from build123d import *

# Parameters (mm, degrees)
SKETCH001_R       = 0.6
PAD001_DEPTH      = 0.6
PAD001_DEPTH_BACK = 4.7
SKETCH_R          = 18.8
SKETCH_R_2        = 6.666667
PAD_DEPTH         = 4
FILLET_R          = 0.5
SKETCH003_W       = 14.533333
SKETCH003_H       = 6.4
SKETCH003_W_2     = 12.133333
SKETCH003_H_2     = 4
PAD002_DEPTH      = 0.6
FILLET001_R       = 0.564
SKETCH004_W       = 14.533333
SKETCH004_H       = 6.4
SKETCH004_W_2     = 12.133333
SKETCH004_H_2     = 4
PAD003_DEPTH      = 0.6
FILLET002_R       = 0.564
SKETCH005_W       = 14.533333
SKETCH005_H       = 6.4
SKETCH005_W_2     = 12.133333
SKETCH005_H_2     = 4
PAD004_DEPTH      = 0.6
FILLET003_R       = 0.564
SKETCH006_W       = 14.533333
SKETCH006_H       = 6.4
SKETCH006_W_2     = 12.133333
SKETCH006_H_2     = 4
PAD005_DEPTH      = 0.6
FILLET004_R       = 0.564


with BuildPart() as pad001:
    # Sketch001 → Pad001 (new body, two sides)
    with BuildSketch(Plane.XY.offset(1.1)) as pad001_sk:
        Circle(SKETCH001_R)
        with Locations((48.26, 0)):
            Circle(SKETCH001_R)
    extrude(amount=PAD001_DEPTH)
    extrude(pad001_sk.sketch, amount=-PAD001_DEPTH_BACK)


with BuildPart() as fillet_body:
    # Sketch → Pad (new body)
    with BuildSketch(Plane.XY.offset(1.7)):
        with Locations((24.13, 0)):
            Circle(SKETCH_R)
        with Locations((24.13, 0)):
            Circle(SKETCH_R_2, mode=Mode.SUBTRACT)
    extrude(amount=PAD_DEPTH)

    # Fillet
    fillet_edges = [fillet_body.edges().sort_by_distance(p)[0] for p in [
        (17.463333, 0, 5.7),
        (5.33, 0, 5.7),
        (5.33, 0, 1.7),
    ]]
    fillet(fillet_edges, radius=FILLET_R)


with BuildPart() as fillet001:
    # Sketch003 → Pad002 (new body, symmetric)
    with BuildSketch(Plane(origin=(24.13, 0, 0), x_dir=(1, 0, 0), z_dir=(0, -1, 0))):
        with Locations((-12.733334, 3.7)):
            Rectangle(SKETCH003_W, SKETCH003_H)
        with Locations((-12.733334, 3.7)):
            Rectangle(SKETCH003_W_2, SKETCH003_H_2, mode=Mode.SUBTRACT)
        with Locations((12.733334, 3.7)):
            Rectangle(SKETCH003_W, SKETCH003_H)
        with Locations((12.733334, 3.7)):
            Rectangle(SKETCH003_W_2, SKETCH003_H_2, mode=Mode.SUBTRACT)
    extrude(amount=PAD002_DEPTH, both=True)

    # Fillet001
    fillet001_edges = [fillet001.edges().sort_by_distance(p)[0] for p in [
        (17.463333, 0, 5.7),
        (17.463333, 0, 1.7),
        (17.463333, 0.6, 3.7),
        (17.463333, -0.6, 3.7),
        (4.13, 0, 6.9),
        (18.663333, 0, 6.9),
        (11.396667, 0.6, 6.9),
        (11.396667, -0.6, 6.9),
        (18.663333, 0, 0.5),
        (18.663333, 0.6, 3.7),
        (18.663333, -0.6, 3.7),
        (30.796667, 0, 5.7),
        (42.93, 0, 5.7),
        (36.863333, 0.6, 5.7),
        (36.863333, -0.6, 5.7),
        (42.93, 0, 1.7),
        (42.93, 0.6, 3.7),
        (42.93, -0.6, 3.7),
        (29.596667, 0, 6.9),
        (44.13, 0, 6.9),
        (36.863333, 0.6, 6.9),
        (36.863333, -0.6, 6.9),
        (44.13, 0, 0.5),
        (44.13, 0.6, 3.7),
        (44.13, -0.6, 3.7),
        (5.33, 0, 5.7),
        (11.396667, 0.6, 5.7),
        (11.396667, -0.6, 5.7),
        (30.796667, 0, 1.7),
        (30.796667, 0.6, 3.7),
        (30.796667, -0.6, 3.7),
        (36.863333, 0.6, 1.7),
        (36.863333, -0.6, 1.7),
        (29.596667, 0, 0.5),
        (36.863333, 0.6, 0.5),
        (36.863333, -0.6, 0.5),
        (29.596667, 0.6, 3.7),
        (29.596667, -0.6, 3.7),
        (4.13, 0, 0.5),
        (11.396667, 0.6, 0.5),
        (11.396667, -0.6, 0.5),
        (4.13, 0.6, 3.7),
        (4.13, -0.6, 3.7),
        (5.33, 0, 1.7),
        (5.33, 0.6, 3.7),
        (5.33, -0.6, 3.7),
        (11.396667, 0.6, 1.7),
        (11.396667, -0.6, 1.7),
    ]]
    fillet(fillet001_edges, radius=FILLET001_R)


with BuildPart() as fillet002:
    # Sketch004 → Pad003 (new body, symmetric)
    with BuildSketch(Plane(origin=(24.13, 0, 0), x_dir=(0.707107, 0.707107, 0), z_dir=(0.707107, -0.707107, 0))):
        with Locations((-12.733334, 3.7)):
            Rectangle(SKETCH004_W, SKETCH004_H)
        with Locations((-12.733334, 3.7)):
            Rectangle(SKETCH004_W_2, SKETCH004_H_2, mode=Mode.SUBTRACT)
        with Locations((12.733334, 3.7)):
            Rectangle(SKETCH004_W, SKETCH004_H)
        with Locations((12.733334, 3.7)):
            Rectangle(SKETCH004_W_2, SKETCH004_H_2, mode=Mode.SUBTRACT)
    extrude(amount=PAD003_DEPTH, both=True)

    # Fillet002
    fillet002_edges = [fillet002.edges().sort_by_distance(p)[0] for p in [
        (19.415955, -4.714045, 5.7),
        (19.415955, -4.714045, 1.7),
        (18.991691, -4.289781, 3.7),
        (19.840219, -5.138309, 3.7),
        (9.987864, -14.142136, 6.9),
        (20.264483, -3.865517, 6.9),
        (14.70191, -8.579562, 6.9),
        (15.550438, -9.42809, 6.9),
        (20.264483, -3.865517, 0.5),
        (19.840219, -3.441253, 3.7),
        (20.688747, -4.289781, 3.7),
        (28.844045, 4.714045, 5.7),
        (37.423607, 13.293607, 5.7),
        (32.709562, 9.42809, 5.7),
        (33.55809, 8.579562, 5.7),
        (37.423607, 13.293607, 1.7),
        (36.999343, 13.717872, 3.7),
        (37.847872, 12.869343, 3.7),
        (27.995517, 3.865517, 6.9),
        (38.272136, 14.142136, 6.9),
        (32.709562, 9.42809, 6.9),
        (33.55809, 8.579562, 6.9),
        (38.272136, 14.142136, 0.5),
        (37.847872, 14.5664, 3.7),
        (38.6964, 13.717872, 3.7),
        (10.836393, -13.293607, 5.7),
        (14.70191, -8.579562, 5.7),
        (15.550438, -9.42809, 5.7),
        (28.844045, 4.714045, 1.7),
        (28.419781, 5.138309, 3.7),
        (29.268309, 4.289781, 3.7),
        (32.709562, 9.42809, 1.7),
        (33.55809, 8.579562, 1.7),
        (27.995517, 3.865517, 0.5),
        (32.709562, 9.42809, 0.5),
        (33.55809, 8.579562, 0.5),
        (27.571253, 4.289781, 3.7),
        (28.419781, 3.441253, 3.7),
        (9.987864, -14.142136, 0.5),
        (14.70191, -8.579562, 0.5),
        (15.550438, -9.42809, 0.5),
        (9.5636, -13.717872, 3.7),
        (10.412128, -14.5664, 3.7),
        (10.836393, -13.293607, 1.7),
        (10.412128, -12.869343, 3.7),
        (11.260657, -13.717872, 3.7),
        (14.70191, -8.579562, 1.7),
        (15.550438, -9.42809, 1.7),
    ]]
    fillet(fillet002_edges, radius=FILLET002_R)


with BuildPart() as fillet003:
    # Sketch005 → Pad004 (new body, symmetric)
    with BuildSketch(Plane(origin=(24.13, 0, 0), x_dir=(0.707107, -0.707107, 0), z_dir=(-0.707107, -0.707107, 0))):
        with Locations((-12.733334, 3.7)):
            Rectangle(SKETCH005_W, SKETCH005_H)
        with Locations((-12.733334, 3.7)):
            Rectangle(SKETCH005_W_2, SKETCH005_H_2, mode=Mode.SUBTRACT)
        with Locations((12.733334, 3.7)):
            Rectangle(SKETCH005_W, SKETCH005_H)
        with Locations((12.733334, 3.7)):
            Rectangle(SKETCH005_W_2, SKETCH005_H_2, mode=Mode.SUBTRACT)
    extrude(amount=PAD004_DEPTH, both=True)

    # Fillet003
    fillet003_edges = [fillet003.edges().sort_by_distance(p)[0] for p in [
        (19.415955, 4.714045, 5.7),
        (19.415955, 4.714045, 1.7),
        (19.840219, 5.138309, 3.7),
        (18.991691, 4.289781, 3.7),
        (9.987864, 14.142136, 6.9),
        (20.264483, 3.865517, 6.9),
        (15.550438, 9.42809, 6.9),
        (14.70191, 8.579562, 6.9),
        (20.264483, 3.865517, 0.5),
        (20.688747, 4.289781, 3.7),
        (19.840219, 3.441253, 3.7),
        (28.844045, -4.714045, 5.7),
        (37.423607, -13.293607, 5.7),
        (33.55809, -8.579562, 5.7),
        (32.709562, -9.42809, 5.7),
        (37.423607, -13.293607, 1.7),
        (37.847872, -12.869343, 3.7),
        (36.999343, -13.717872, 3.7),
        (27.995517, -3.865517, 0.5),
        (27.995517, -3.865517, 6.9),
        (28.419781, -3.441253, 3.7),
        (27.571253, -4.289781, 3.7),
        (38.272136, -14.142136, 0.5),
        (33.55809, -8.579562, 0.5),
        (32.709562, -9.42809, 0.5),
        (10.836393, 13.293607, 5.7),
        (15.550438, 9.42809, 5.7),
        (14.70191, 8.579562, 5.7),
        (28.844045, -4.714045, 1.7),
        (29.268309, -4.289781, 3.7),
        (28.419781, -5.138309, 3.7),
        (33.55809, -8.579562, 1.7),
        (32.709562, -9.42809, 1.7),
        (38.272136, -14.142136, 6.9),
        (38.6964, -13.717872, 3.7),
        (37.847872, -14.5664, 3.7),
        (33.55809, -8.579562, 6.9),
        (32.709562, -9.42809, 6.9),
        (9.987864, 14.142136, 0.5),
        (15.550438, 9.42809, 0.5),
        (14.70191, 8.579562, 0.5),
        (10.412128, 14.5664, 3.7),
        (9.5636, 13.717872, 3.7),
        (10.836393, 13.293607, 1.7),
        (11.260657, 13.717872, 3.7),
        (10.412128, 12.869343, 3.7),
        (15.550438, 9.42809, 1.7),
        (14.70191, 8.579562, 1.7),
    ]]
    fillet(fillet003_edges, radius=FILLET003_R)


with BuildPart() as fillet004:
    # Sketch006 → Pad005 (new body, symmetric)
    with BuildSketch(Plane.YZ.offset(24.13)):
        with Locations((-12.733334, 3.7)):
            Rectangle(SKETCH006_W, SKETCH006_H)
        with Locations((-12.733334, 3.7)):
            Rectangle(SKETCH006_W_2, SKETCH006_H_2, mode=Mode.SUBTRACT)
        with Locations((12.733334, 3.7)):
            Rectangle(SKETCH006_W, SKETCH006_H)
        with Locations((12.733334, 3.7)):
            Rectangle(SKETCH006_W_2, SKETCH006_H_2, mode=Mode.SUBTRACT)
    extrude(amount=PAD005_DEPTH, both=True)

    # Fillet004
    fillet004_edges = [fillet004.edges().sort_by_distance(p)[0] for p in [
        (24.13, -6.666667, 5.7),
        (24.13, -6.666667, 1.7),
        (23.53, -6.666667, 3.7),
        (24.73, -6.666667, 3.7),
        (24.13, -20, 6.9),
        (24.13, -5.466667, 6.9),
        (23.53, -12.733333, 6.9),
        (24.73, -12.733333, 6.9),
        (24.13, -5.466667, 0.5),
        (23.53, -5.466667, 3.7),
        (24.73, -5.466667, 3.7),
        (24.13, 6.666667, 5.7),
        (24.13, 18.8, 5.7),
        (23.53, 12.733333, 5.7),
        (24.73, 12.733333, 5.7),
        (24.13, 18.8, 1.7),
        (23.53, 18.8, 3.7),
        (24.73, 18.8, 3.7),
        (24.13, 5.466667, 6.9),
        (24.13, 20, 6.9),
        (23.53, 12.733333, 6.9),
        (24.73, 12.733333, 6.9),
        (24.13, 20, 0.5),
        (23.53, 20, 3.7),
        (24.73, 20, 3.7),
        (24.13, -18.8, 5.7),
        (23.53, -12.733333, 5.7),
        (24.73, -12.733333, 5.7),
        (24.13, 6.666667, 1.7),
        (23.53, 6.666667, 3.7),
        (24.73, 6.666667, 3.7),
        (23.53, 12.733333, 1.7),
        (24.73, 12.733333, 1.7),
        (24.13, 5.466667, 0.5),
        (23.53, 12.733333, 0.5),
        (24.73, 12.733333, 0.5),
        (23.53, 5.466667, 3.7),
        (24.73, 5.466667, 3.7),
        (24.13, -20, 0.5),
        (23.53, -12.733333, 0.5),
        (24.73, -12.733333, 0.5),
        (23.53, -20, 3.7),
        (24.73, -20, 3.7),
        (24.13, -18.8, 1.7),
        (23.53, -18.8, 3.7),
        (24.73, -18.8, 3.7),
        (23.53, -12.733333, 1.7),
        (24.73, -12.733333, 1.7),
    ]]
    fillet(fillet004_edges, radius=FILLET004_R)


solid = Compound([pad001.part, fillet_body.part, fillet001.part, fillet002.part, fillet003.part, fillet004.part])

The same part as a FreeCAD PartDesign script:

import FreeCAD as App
import Part
import Sketcher

V = App.Vector


def edges_at(feature, points):
    """Names of the edges that pass closest to the given points."""
    edges = feature.Shape.Edges
    near = lambda p: min(range(len(edges)), key=lambda i: edges[i].distToShape(Part.Vertex(*p))[0])
    return sorted({f"Edge{near(p) + 1}" for p in points})

doc = App.newDocument("Part")
body = doc.addObject("PartDesign::Body", "Body")
body.AllowCompound = True

# Sketch on XY plane
sketch1 = body.newObject("Sketcher::SketchObject", "Sketch")
sketch1.AttachmentSupport = (doc.getObject("XY_Plane"), [""])
sketch1.MapMode = "FlatFace"
sketch1.AttachmentOffset = App.Placement(V(0, 0, 1.1), App.Rotation())
sketch1.addGeometry([
    Part.Circle(V(0, 0, 0), V(0, 0, 1), 0.6),
    Part.Circle(V(48.26, 0, 0), V(0, 0, 1), 0.6),
], False)
sketch1.addConstraint([
    Sketcher.Constraint("Coincident", 0, 3, -1, 1),
    Sketcher.Constraint("Equal", 0, 1),
    Sketcher.Constraint("PointOnObject", 1, 3, -1),
    Sketcher.Constraint("Diameter", 0, 1.2),
    Sketcher.Constraint("DistanceX", -1, 1, 1, 3, 48.26),
])
pad1 = body.newObject("PartDesign::Pad", "Pad")
pad1.Profile = sketch1
pad1.Type = "TwoLengths"
pad1.Length = 0.6
pad1.Length2 = 4.7
body2 = doc.addObject("PartDesign::Body", "Body001")

# Sketch on XY plane
sketch2 = body2.newObject("Sketcher::SketchObject", "Sketch001")
sketch2.AttachmentSupport = (doc.getObject("XY_Plane001"), [""])
sketch2.MapMode = "FlatFace"
sketch2.AttachmentOffset = App.Placement(V(0, 0, 1.7), App.Rotation())
sketch2.addGeometry([
    Part.Circle(V(24.13, 0, 0), V(0, 0, 1), 18.8),
    Part.Circle(V(24.13, 0, 0), V(0, 0, 1), 6.666667),
], False)
sketch2.addConstraint([
    Sketcher.Constraint("Coincident", 1, 3, 0, 3),
    Sketcher.Constraint("PointOnObject", 0, 3, -1),
    Sketcher.Constraint("Diameter", 0, 37.6),
    Sketcher.Constraint("DistanceX", -1, 1, 0, 3, 24.13),
    Sketcher.Constraint("Diameter", 1, 13.333334),
])
pad2 = body2.newObject("PartDesign::Pad", "Pad001")
pad2.Profile = sketch2
pad2.Length = 4
doc.recompute()

fillet = body2.newObject("PartDesign::Fillet", "Fillet")
fillet.Base = (pad2, edges_at(pad2, [(17.463, 0, 5.7), (5.33, 0, 5.7), (5.33, 0, 1.7)]))
fillet.Radius = 0.5
body3 = doc.addObject("PartDesign::Body", "Body002")
body3.AllowCompound = True

# Sketch on XZ plane
sketch3 = body3.newObject("Sketcher::SketchObject", "Sketch002")
sketch3.AttachmentSupport = (doc.getObject("XZ_Plane002"), [""])
sketch3.MapMode = "FlatFace"
sketch3.addGeometry([
    Part.LineSegment(V(4.13, 6.9, 0), V(4.13, 0.5, 0)),  # 0
    Part.LineSegment(V(4.13, 0.5, 0), V(18.663332, 0.5, 0)),  # 1
    Part.LineSegment(V(18.663332, 0.5, 0), V(18.663332, 6.9, 0)),  # 2
    Part.LineSegment(V(18.663332, 6.9, 0), V(4.13, 6.9, 0)),  # 3
    Part.LineSegment(V(17.463332, 1.7, 0), V(5.329999, 1.7, 0)),  # 4
    Part.LineSegment(V(5.329999, 1.7, 0), V(5.329999, 5.7, 0)),  # 5
    Part.LineSegment(V(5.329999, 5.7, 0), V(17.463332, 5.7, 0)),  # 6
    Part.LineSegment(V(17.463332, 5.7, 0), V(17.463332, 1.7, 0)),  # 7
    Part.LineSegment(V(29.596667, 6.9, 0), V(29.596667, 0.5, 0)),  # 8
    Part.LineSegment(V(29.596667, 0.5, 0), V(44.130001, 0.5, 0)),  # 9
    Part.LineSegment(V(44.130001, 0.5, 0), V(44.130001, 6.9, 0)),  # 10
    Part.LineSegment(V(44.130001, 6.9, 0), V(29.596667, 6.9, 0)),  # 11
    Part.LineSegment(V(42.93, 1.7, 0), V(30.796668, 1.7, 0)),  # 12
    Part.LineSegment(V(30.796668, 1.7, 0), V(30.796668, 5.7, 0)),  # 13
    Part.LineSegment(V(30.796668, 5.7, 0), V(42.93, 5.7, 0)),  # 14
    Part.LineSegment(V(42.93, 5.7, 0), V(42.93, 1.7, 0)),  # 15
], False)
sketch3.addConstraint([
    Sketcher.Constraint("Coincident", 0, 2, 1, 1),
    Sketcher.Constraint("Coincident", 1, 2, 2, 1),
    Sketcher.Constraint("Coincident", 2, 2, 3, 1),
    Sketcher.Constraint("Coincident", 3, 2, 0, 1),
    Sketcher.Constraint("Coincident", 4, 2, 5, 1),
    Sketcher.Constraint("Coincident", 5, 2, 6, 1),
    Sketcher.Constraint("Coincident", 6, 2, 7, 1),
    Sketcher.Constraint("Coincident", 7, 2, 4, 1),
    Sketcher.Constraint("Coincident", 8, 2, 9, 1),
    Sketcher.Constraint("Coincident", 9, 2, 10, 1),
    Sketcher.Constraint("Coincident", 10, 2, 11, 1),
    Sketcher.Constraint("Coincident", 11, 2, 8, 1),
    Sketcher.Constraint("Coincident", 12, 2, 13, 1),
    Sketcher.Constraint("Coincident", 13, 2, 14, 1),
    Sketcher.Constraint("Coincident", 14, 2, 15, 1),
    Sketcher.Constraint("Coincident", 15, 2, 12, 1),
    Sketcher.Constraint("Vertical", 0),
    Sketcher.Constraint("Horizontal", 1),
    Sketcher.Constraint("Vertical", 2),
    Sketcher.Constraint("Horizontal", 3),
    Sketcher.Constraint("Horizontal", 4),
    Sketcher.Constraint("Vertical", 5),
    Sketcher.Constraint("Horizontal", 6),
    Sketcher.Constraint("Vertical", 7),
    Sketcher.Constraint("Vertical", 8),
    Sketcher.Constraint("Horizontal", 9),
    Sketcher.Constraint("Vertical", 10),
    Sketcher.Constraint("Horizontal", 11),
    Sketcher.Constraint("Horizontal", 12),
    Sketcher.Constraint("Vertical", 13),
    Sketcher.Constraint("Horizontal", 14),
    Sketcher.Constraint("Vertical", 15),
    Sketcher.Constraint("Horizontal", 1, 2, 8, 2),
    Sketcher.Constraint("Horizontal", 3, 2, 10, 2),
    Sketcher.Constraint("Horizontal", 7, 2, 12, 2),
    Sketcher.Constraint("Horizontal", 6, 2, 13, 2),
    Sketcher.Constraint("Equal", 3, 9),
    Sketcher.Constraint("Equal", 6, 12),
    Sketcher.Constraint("DistanceY", 5, 1, 5, 2, 4.0),
    Sketcher.Constraint("DistanceY", 0, 2, 0, 1, 6.4),
    Sketcher.Constraint("DistanceY", -1, 1, 0, 2, 0.5),
    Sketcher.Constraint("DistanceY", -1, 1, 4, 2, 1.7),
    Sketcher.Constraint("DistanceX", 0, 2, 4, 2, 1.2),
    Sketcher.Constraint("DistanceX", 6, 2, 2, 2, 1.2),
    Sketcher.Constraint("DistanceX", 8, 2, 12, 2, 1.2),
    Sketcher.Constraint("DistanceX", -1, 1, 0, 2, 4.13),
    Sketcher.Constraint("DistanceX", -1, 1, 9, 2, 44.130001),
    Sketcher.Constraint("DistanceX", 1, 1, 1, 2, 14.533333),
])
pad3 = body3.newObject("PartDesign::Pad", "Pad002")
pad3.Profile = sketch3
pad3.Length = 1.2
pad3.Midplane = True
doc.recompute()

fillet2 = body3.newObject("PartDesign::Fillet", "Fillet001")
fillet2.Base = (pad3, ["Edge1"])
fillet2.UseAllEdges = True
fillet2.Radius = 0.564
body4 = doc.addObject("PartDesign::Body", "Body003")
body4.AllowCompound = True

# Sketch on an angled plane
sketch4 = body4.newObject("Sketcher::SketchObject", "Sketch003")
sketch4.Placement = App.Placement(V(24.13, 0, 0), App.Rotation(V(0.707106781, 0.707106781, 0), V(0, 0, 0.999999999), V(0.707106781, -0.707106781, 0), "ZXY"))
sketch4.addGeometry([
    Part.LineSegment(V(-20, 6.9, 0), V(-20, 0.5, 0)),  # 0
    Part.LineSegment(V(-20, 0.5, 0), V(-5.466667, 0.5, 0)),  # 1
    Part.LineSegment(V(-5.466667, 0.5, 0), V(-5.466667, 6.9, 0)),  # 2
    Part.LineSegment(V(-5.466667, 6.9, 0), V(-20, 6.9, 0)),  # 3
    Part.LineSegment(V(-6.666667, 1.7, 0), V(-18.8, 1.7, 0)),  # 4
    Part.LineSegment(V(-18.8, 1.7, 0), V(-18.8, 5.7, 0)),  # 5
    Part.LineSegment(V(-18.8, 5.7, 0), V(-6.666667, 5.7, 0)),  # 6
    Part.LineSegment(V(-6.666667, 5.7, 0), V(-6.666667, 1.7, 0)),  # 7
    Part.LineSegment(V(5.466667, 6.9, 0), V(5.466667, 0.5, 0)),  # 8
    Part.LineSegment(V(5.466667, 0.5, 0), V(20, 0.5, 0)),  # 9
    Part.LineSegment(V(20, 0.5, 0), V(20, 6.9, 0)),  # 10
    Part.LineSegment(V(20, 6.9, 0), V(5.466667, 6.9, 0)),  # 11
    Part.LineSegment(V(18.8, 1.7, 0), V(6.666667, 1.7, 0)),  # 12
    Part.LineSegment(V(6.666667, 1.7, 0), V(6.666667, 5.7, 0)),  # 13
    Part.LineSegment(V(6.666667, 5.7, 0), V(18.8, 5.7, 0)),  # 14
    Part.LineSegment(V(18.8, 5.7, 0), V(18.8, 1.7, 0)),  # 15
], False)
sketch4.addConstraint([
    Sketcher.Constraint("Coincident", 0, 2, 1, 1),
    Sketcher.Constraint("Coincident", 1, 2, 2, 1),
    Sketcher.Constraint("Coincident", 2, 2, 3, 1),
    Sketcher.Constraint("Coincident", 3, 2, 0, 1),
    Sketcher.Constraint("Coincident", 4, 2, 5, 1),
    Sketcher.Constraint("Coincident", 5, 2, 6, 1),
    Sketcher.Constraint("Coincident", 6, 2, 7, 1),
    Sketcher.Constraint("Coincident", 7, 2, 4, 1),
    Sketcher.Constraint("Coincident", 8, 2, 9, 1),
    Sketcher.Constraint("Coincident", 9, 2, 10, 1),
    Sketcher.Constraint("Coincident", 10, 2, 11, 1),
    Sketcher.Constraint("Coincident", 11, 2, 8, 1),
    Sketcher.Constraint("Coincident", 12, 2, 13, 1),
    Sketcher.Constraint("Coincident", 13, 2, 14, 1),
    Sketcher.Constraint("Coincident", 14, 2, 15, 1),
    Sketcher.Constraint("Coincident", 15, 2, 12, 1),
    Sketcher.Constraint("Vertical", 0),
    Sketcher.Constraint("Horizontal", 1),
    Sketcher.Constraint("Vertical", 2),
    Sketcher.Constraint("Horizontal", 3),
    Sketcher.Constraint("Horizontal", 4),
    Sketcher.Constraint("Vertical", 5),
    Sketcher.Constraint("Horizontal", 6),
    Sketcher.Constraint("Vertical", 7),
    Sketcher.Constraint("Vertical", 8),
    Sketcher.Constraint("Horizontal", 9),
    Sketcher.Constraint("Vertical", 10),
    Sketcher.Constraint("Horizontal", 11),
    Sketcher.Constraint("Horizontal", 12),
    Sketcher.Constraint("Vertical", 13),
    Sketcher.Constraint("Horizontal", 14),
    Sketcher.Constraint("Vertical", 15),
    Sketcher.Constraint("Symmetric", 1, 2, 8, 2, -2),
    Sketcher.Constraint("Symmetric", 3, 2, 10, 2, -2),
    Sketcher.Constraint("Symmetric", 7, 2, 12, 2, -2),
    Sketcher.Constraint("Symmetric", 5, 2, 14, 2, -2),
    Sketcher.Constraint("DistanceY", 5, 1, 5, 2, 4.0),
    Sketcher.Constraint("DistanceY", 0, 2, 0, 1, 6.4),
    Sketcher.Constraint("DistanceX", 0, 2, -1, 1, 20.0),
    Sketcher.Constraint("DistanceY", -1, 1, 0, 2, 0.5),
    Sketcher.Constraint("DistanceX", 4, 2, -1, 1, 18.8),
    Sketcher.Constraint("DistanceY", -1, 1, 4, 2, 1.7),
    Sketcher.Constraint("DistanceX", 6, 2, 2, 2, 1.2),
    Sketcher.Constraint("DistanceX", 1, 1, 1, 2, 14.533333),
])
pad4 = body4.newObject("PartDesign::Pad", "Pad003")
pad4.Profile = sketch4
pad4.Length = 1.2
pad4.Midplane = True
doc.recompute()

fillet3 = body4.newObject("PartDesign::Fillet", "Fillet002")
fillet3.Base = (pad4, ["Edge1"])
fillet3.UseAllEdges = True
fillet3.Radius = 0.564
body5 = doc.addObject("PartDesign::Body", "Body004")
body5.AllowCompound = True

# Sketch on an angled plane
sketch5 = body5.newObject("Sketcher::SketchObject", "Sketch004")
sketch5.Placement = App.Placement(V(24.13, 0, 0), App.Rotation(V(0.707106781, -0.707106781, 0), V(0, 0, 0.999999999), V(-0.707106781, -0.707106781, 0), "ZXY"))
sketch5.addGeometry([
    Part.LineSegment(V(-20, 6.9, 0), V(-20, 0.5, 0)),  # 0
    Part.LineSegment(V(-20, 0.5, 0), V(-5.466667, 0.5, 0)),  # 1
    Part.LineSegment(V(-5.466667, 0.5, 0), V(-5.466667, 6.9, 0)),  # 2
    Part.LineSegment(V(-5.466667, 6.9, 0), V(-20, 6.9, 0)),  # 3
    Part.LineSegment(V(-6.666667, 1.7, 0), V(-18.8, 1.7, 0)),  # 4
    Part.LineSegment(V(-18.8, 1.7, 0), V(-18.8, 5.7, 0)),  # 5
    Part.LineSegment(V(-18.8, 5.7, 0), V(-6.666667, 5.7, 0)),  # 6
    Part.LineSegment(V(-6.666667, 5.7, 0), V(-6.666667, 1.7, 0)),  # 7
    Part.LineSegment(V(5.466667, 6.9, 0), V(5.466667, 0.5, 0)),  # 8
    Part.LineSegment(V(5.466667, 0.5, 0), V(20, 0.5, 0)),  # 9
    Part.LineSegment(V(20, 0.5, 0), V(20, 6.9, 0)),  # 10
    Part.LineSegment(V(20, 6.9, 0), V(5.466667, 6.9, 0)),  # 11
    Part.LineSegment(V(18.8, 1.7, 0), V(6.666667, 1.7, 0)),  # 12
    Part.LineSegment(V(6.666667, 1.7, 0), V(6.666667, 5.7, 0)),  # 13
    Part.LineSegment(V(6.666667, 5.7, 0), V(18.8, 5.7, 0)),  # 14
    Part.LineSegment(V(18.8, 5.7, 0), V(18.8, 1.7, 0)),  # 15
], False)
sketch5.addConstraint([
    Sketcher.Constraint("Coincident", 0, 2, 1, 1),
    Sketcher.Constraint("Coincident", 1, 2, 2, 1),
    Sketcher.Constraint("Coincident", 2, 2, 3, 1),
    Sketcher.Constraint("Coincident", 3, 2, 0, 1),
    Sketcher.Constraint("Coincident", 4, 2, 5, 1),
    Sketcher.Constraint("Coincident", 5, 2, 6, 1),
    Sketcher.Constraint("Coincident", 6, 2, 7, 1),
    Sketcher.Constraint("Coincident", 7, 2, 4, 1),
    Sketcher.Constraint("Coincident", 8, 2, 9, 1),
    Sketcher.Constraint("Coincident", 9, 2, 10, 1),
    Sketcher.Constraint("Coincident", 10, 2, 11, 1),
    Sketcher.Constraint("Coincident", 11, 2, 8, 1),
    Sketcher.Constraint("Coincident", 12, 2, 13, 1),
    Sketcher.Constraint("Coincident", 13, 2, 14, 1),
    Sketcher.Constraint("Coincident", 14, 2, 15, 1),
    Sketcher.Constraint("Coincident", 15, 2, 12, 1),
    Sketcher.Constraint("Vertical", 0),
    Sketcher.Constraint("Horizontal", 1),
    Sketcher.Constraint("Vertical", 2),
    Sketcher.Constraint("Horizontal", 3),
    Sketcher.Constraint("Horizontal", 4),
    Sketcher.Constraint("Vertical", 5),
    Sketcher.Constraint("Horizontal", 6),
    Sketcher.Constraint("Vertical", 7),
    Sketcher.Constraint("Vertical", 8),
    Sketcher.Constraint("Horizontal", 9),
    Sketcher.Constraint("Vertical", 10),
    Sketcher.Constraint("Horizontal", 11),
    Sketcher.Constraint("Horizontal", 12),
    Sketcher.Constraint("Vertical", 13),
    Sketcher.Constraint("Horizontal", 14),
    Sketcher.Constraint("Vertical", 15),
    Sketcher.Constraint("Symmetric", 1, 2, 8, 2, -2),
    Sketcher.Constraint("Symmetric", 3, 2, 10, 2, -2),
    Sketcher.Constraint("Symmetric", 7, 2, 12, 2, -2),
    Sketcher.Constraint("Symmetric", 5, 2, 14, 2, -2),
    Sketcher.Constraint("DistanceY", 5, 1, 5, 2, 4.0),
    Sketcher.Constraint("DistanceY", 0, 2, 0, 1, 6.4),
    Sketcher.Constraint("DistanceX", 0, 2, -1, 1, 20.0),
    Sketcher.Constraint("DistanceY", -1, 1, 0, 2, 0.5),
    Sketcher.Constraint("DistanceX", 4, 2, -1, 1, 18.8),
    Sketcher.Constraint("DistanceY", -1, 1, 4, 2, 1.7),
    Sketcher.Constraint("DistanceX", 6, 2, 2, 2, 1.2),
    Sketcher.Constraint("DistanceX", 1, 1, 1, 2, 14.533333),
])
pad5 = body5.newObject("PartDesign::Pad", "Pad004")
pad5.Profile = sketch5
pad5.Length = 1.2
pad5.Midplane = True
doc.recompute()

fillet4 = body5.newObject("PartDesign::Fillet", "Fillet003")
fillet4.Base = (pad5, ["Edge1"])
fillet4.UseAllEdges = True
fillet4.Radius = 0.564
body6 = doc.addObject("PartDesign::Body", "Body005")
body6.AllowCompound = True

# Sketch on YZ plane
sketch6 = body6.newObject("Sketcher::SketchObject", "Sketch005")
sketch6.AttachmentSupport = (doc.getObject("YZ_Plane005"), [""])
sketch6.MapMode = "FlatFace"
sketch6.AttachmentOffset = App.Placement(V(0, 0, 24.13), App.Rotation())
sketch6.addGeometry([
    Part.LineSegment(V(-20, 6.9, 0), V(-20, 0.5, 0)),  # 0
    Part.LineSegment(V(-20, 0.5, 0), V(-5.466667, 0.5, 0)),  # 1
    Part.LineSegment(V(-5.466667, 0.5, 0), V(-5.466667, 6.9, 0)),  # 2
    Part.LineSegment(V(-5.466667, 6.9, 0), V(-20, 6.9, 0)),  # 3
    Part.LineSegment(V(-6.666667, 1.7, 0), V(-18.8, 1.7, 0)),  # 4
    Part.LineSegment(V(-18.8, 1.7, 0), V(-18.8, 5.7, 0)),  # 5
    Part.LineSegment(V(-18.8, 5.7, 0), V(-6.666667, 5.7, 0)),  # 6
    Part.LineSegment(V(-6.666667, 5.7, 0), V(-6.666667, 1.7, 0)),  # 7
    Part.LineSegment(V(5.466667, 6.9, 0), V(5.466667, 0.5, 0)),  # 8
    Part.LineSegment(V(5.466667, 0.5, 0), V(20, 0.5, 0)),  # 9
    Part.LineSegment(V(20, 0.5, 0), V(20, 6.9, 0)),  # 10
    Part.LineSegment(V(20, 6.9, 0), V(5.466667, 6.9, 0)),  # 11
    Part.LineSegment(V(18.8, 1.7, 0), V(6.666667, 1.7, 0)),  # 12
    Part.LineSegment(V(6.666667, 1.7, 0), V(6.666667, 5.7, 0)),  # 13
    Part.LineSegment(V(6.666667, 5.7, 0), V(18.8, 5.7, 0)),  # 14
    Part.LineSegment(V(18.8, 5.7, 0), V(18.8, 1.7, 0)),  # 15
], False)
sketch6.addConstraint([
    Sketcher.Constraint("Coincident", 0, 2, 1, 1),
    Sketcher.Constraint("Coincident", 1, 2, 2, 1),
    Sketcher.Constraint("Coincident", 2, 2, 3, 1),
    Sketcher.Constraint("Coincident", 3, 2, 0, 1),
    Sketcher.Constraint("Coincident", 4, 2, 5, 1),
    Sketcher.Constraint("Coincident", 5, 2, 6, 1),
    Sketcher.Constraint("Coincident", 6, 2, 7, 1),
    Sketcher.Constraint("Coincident", 7, 2, 4, 1),
    Sketcher.Constraint("Coincident", 8, 2, 9, 1),
    Sketcher.Constraint("Coincident", 9, 2, 10, 1),
    Sketcher.Constraint("Coincident", 10, 2, 11, 1),
    Sketcher.Constraint("Coincident", 11, 2, 8, 1),
    Sketcher.Constraint("Coincident", 12, 2, 13, 1),
    Sketcher.Constraint("Coincident", 13, 2, 14, 1),
    Sketcher.Constraint("Coincident", 14, 2, 15, 1),
    Sketcher.Constraint("Coincident", 15, 2, 12, 1),
    Sketcher.Constraint("Vertical", 0),
    Sketcher.Constraint("Horizontal", 1),
    Sketcher.Constraint("Vertical", 2),
    Sketcher.Constraint("Horizontal", 3),
    Sketcher.Constraint("Horizontal", 4),
    Sketcher.Constraint("Vertical", 5),
    Sketcher.Constraint("Horizontal", 6),
    Sketcher.Constraint("Vertical", 7),
    Sketcher.Constraint("Vertical", 8),
    Sketcher.Constraint("Horizontal", 9),
    Sketcher.Constraint("Vertical", 10),
    Sketcher.Constraint("Horizontal", 11),
    Sketcher.Constraint("Horizontal", 12),
    Sketcher.Constraint("Vertical", 13),
    Sketcher.Constraint("Horizontal", 14),
    Sketcher.Constraint("Vertical", 15),
    Sketcher.Constraint("Symmetric", 1, 2, 8, 2, -2),
    Sketcher.Constraint("Symmetric", 3, 2, 10, 2, -2),
    Sketcher.Constraint("Symmetric", 7, 2, 12, 2, -2),
    Sketcher.Constraint("Symmetric", 5, 2, 14, 2, -2),
    Sketcher.Constraint("DistanceY", 5, 1, 5, 2, 4.0),
    Sketcher.Constraint("DistanceY", 0, 2, 0, 1, 6.4),
    Sketcher.Constraint("DistanceX", 0, 2, -1, 1, 20.0),
    Sketcher.Constraint("DistanceY", -1, 1, 0, 2, 0.5),
    Sketcher.Constraint("DistanceX", 4, 2, -1, 1, 18.8),
    Sketcher.Constraint("DistanceY", -1, 1, 4, 2, 1.7),
    Sketcher.Constraint("DistanceX", 6, 2, 2, 2, 1.2),
    Sketcher.Constraint("DistanceX", 1, 1, 1, 2, 14.533333),
])
pad6 = body6.newObject("PartDesign::Pad", "Pad005")
pad6.Profile = sketch6
pad6.Length = 1.2
pad6.Midplane = True
doc.recompute()

fillet5 = body6.newObject("PartDesign::Fillet", "Fillet004")
fillet5.Base = (pad6, ["Edge1"])
fillet5.UseAllEdges = True
fillet5.Radius = 0.564

doc.recompute()
